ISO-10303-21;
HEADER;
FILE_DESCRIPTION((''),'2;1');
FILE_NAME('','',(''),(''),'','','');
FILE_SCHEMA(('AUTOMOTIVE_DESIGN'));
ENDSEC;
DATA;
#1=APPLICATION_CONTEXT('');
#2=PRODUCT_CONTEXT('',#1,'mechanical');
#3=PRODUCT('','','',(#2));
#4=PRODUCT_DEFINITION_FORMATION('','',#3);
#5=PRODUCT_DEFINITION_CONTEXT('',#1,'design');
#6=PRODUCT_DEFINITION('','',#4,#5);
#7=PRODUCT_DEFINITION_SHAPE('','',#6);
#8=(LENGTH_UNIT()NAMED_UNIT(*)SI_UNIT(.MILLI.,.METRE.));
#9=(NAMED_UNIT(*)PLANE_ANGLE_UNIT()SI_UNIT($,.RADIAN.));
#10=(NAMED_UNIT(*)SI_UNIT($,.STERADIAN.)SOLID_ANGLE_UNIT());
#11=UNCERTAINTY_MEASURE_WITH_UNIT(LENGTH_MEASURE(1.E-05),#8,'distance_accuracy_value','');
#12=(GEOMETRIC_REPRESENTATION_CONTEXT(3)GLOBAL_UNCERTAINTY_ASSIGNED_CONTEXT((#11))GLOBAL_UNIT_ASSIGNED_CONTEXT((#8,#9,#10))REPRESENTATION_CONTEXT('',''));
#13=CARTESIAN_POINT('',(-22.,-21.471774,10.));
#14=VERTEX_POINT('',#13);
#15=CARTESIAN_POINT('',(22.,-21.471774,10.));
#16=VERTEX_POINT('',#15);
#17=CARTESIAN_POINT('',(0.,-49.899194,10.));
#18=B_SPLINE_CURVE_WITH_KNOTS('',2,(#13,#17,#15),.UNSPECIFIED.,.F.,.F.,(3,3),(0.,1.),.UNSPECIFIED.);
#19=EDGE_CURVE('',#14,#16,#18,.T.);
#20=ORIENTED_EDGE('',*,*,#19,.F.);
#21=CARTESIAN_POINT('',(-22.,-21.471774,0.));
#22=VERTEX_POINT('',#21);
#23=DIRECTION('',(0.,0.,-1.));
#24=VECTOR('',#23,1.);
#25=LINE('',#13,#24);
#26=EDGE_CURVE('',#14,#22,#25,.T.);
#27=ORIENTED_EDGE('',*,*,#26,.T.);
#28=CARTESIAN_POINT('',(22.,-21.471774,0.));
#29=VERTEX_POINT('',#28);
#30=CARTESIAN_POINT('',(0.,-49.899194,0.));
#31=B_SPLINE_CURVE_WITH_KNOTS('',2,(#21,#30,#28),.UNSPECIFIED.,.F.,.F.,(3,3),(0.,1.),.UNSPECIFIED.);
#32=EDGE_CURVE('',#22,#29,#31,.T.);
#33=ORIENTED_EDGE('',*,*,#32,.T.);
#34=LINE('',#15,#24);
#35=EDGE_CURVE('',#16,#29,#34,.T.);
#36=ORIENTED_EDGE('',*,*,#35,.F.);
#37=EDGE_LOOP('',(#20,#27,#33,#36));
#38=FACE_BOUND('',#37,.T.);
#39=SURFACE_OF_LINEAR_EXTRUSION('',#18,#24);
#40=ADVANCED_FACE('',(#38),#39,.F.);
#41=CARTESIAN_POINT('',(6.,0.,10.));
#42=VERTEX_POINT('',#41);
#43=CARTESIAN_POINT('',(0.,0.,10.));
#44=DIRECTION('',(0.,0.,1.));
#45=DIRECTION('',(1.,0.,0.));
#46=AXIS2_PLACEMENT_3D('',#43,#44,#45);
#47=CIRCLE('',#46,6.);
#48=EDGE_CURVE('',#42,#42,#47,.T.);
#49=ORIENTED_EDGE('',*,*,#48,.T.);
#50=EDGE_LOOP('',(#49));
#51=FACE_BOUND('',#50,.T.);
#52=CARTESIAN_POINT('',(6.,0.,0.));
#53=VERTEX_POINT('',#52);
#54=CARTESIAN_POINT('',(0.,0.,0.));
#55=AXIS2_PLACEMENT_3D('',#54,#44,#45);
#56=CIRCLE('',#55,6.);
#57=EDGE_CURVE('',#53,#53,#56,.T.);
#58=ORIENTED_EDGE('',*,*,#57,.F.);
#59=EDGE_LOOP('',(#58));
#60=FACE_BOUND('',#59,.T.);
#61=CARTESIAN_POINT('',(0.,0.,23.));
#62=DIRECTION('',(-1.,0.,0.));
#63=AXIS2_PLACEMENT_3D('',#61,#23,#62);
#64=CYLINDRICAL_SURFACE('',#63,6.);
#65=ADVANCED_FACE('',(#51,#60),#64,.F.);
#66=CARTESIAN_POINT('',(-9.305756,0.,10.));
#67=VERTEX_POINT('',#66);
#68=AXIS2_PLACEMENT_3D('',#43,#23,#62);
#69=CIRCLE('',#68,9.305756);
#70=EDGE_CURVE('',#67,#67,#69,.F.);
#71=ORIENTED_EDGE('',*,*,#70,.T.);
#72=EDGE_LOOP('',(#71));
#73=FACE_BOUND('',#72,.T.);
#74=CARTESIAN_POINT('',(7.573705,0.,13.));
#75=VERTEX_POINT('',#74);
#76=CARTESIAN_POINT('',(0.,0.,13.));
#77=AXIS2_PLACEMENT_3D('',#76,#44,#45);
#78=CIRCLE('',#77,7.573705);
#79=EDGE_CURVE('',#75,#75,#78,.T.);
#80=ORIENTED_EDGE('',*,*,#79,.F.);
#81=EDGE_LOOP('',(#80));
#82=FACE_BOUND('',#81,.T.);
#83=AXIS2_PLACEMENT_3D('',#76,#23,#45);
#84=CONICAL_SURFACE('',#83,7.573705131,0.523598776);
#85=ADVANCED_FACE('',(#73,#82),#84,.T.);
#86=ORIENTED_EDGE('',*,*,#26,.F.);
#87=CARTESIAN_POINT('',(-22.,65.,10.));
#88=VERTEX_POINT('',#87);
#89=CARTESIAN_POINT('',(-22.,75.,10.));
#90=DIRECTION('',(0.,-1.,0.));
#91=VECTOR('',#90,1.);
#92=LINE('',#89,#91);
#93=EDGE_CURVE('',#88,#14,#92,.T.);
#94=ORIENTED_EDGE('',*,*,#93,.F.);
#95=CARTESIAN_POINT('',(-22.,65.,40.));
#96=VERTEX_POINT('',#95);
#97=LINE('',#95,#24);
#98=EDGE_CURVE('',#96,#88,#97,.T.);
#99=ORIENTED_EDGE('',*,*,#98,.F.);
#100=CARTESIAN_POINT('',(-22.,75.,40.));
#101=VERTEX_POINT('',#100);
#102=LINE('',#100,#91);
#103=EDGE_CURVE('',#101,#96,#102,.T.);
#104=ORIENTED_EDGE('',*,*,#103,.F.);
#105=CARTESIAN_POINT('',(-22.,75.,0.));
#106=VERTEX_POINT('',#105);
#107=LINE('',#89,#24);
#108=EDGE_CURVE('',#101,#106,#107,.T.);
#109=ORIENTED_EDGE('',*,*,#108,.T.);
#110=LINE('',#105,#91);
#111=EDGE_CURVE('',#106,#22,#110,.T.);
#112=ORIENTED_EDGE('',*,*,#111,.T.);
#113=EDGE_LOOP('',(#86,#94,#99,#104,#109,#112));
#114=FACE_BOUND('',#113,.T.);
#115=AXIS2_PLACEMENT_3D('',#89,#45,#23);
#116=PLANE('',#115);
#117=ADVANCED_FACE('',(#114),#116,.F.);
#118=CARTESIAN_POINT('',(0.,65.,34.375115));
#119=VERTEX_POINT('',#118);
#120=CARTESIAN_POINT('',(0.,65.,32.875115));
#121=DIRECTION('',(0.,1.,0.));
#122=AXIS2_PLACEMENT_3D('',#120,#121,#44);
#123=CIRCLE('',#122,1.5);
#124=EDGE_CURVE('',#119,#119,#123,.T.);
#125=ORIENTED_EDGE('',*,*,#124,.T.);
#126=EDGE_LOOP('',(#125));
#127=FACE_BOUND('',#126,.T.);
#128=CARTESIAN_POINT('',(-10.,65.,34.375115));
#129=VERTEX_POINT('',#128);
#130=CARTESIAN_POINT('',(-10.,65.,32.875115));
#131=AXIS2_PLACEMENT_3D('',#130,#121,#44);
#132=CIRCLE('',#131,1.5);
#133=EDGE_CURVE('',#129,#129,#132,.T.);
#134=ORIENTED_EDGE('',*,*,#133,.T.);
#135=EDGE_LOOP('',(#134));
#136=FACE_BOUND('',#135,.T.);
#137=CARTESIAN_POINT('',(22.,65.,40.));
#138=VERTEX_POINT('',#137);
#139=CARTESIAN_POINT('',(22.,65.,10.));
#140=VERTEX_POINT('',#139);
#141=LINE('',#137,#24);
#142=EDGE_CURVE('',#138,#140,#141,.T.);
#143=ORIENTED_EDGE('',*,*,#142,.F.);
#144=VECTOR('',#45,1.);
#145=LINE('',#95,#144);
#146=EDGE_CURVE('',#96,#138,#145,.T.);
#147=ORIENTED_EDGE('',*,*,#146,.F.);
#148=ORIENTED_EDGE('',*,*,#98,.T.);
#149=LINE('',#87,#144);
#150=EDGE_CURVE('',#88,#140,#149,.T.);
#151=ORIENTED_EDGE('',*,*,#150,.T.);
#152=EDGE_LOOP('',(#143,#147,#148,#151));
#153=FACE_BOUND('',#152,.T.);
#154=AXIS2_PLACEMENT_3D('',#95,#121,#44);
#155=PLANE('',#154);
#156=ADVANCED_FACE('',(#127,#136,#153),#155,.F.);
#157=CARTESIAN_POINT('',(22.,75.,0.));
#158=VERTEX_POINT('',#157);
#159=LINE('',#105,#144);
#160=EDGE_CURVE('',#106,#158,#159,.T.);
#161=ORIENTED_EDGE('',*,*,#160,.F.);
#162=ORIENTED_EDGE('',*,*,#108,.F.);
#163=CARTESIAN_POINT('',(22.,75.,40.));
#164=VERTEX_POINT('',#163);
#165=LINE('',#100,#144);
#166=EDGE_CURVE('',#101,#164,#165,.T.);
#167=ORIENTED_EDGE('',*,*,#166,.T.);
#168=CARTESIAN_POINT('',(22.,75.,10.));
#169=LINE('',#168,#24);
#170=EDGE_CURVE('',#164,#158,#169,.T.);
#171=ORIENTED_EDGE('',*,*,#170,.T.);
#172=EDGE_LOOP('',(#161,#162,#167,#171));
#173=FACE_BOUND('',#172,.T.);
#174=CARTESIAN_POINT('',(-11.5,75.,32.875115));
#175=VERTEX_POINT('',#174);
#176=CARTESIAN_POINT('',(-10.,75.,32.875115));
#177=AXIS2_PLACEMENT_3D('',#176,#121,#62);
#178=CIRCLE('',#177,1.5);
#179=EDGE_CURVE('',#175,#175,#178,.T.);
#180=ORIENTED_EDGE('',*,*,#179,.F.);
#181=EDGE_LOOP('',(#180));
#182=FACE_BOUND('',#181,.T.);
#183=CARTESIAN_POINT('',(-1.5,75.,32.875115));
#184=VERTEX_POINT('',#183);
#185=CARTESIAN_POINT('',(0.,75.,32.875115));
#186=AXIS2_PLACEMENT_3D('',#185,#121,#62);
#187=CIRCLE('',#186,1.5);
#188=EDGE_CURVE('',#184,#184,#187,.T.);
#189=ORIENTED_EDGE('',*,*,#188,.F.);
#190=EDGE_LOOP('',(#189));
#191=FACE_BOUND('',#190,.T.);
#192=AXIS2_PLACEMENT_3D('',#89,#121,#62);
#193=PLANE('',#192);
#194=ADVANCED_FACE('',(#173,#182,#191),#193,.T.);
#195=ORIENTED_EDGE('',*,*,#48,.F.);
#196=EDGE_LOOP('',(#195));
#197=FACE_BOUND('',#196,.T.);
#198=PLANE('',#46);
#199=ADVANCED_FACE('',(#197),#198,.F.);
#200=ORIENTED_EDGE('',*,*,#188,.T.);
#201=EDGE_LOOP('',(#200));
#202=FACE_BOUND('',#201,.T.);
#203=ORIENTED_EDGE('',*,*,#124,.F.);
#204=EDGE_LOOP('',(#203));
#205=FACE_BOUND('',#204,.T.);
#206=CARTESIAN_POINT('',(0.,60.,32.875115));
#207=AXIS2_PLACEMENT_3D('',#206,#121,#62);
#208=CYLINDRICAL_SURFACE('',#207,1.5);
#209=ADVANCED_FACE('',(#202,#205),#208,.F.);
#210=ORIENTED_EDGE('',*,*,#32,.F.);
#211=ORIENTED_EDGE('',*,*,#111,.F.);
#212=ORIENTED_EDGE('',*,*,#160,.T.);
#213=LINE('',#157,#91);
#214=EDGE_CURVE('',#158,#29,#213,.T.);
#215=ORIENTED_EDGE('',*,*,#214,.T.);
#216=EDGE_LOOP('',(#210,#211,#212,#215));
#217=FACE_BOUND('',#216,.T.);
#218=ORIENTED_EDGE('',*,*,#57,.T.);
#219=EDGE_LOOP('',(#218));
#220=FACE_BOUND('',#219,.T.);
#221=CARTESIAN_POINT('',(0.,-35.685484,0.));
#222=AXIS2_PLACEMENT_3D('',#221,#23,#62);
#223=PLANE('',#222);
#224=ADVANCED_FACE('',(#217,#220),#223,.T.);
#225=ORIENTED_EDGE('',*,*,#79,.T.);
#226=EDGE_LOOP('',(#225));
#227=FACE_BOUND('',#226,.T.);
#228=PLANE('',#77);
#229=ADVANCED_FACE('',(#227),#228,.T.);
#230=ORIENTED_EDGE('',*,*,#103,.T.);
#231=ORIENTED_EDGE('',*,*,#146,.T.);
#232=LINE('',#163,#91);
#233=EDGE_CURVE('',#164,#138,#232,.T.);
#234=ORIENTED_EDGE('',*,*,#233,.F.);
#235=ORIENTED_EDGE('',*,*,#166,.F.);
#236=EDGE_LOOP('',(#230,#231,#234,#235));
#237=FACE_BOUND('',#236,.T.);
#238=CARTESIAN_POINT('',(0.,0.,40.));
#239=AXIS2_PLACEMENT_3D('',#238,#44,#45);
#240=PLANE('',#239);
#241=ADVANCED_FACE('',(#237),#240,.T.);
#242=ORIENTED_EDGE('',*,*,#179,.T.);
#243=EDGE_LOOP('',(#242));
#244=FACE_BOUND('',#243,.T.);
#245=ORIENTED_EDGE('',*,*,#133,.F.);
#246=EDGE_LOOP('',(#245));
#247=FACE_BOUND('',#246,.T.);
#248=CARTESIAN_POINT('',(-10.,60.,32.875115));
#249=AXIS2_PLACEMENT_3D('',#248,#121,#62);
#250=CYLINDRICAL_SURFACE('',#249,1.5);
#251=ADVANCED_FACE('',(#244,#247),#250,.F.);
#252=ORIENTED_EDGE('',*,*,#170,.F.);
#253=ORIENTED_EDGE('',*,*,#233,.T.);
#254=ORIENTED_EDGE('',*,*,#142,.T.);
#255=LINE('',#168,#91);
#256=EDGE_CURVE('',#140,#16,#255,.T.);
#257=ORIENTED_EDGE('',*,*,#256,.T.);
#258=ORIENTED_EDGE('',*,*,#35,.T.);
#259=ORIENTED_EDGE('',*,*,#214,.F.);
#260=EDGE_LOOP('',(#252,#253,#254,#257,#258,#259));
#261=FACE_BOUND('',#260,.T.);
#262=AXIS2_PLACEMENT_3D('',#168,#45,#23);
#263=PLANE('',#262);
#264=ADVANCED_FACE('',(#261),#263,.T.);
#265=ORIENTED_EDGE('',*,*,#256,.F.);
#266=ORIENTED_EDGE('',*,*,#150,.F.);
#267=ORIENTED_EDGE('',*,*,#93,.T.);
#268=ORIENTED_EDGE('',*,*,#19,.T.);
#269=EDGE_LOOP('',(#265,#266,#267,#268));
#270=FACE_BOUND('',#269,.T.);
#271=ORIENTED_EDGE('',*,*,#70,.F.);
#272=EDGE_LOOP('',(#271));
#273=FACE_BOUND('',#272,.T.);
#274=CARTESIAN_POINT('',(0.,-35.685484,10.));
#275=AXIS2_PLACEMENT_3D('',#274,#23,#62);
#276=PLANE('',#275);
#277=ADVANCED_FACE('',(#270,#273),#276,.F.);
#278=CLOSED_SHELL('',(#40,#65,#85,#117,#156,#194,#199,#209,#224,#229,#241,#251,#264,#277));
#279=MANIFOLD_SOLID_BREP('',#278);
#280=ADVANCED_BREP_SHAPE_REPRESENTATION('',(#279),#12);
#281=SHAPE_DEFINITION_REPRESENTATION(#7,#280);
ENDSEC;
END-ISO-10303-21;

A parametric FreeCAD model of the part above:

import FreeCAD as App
import Part
import Sketcher

V = App.Vector


def faces_at(feature, points):
    """Names of the faces that lie closest to the given points."""
    faces = feature.Shape.Faces
    near = lambda p: min(range(len(faces)), key=lambda i: faces[i].distToShape(Part.Vertex(*p))[0])
    return sorted({f"Face{near(p) + 1}" for p in points})


def add_polygon(sketch, points):
    """Adds a closed chain of lines whose ends are joined by coincident constraints."""
    first, n = sketch.GeometryCount, len(points)
    for a, b in zip(points, points[1:] + points[:1]):
        sketch.addGeometry(Part.LineSegment(App.Vector(*a, 0), App.Vector(*b, 0)), False)
    for i in range(n):
        sketch.addConstraint(Sketcher.Constraint("Coincident", first + i, 2, first + (i + 1) % n, 1))

doc = App.newDocument("Part")
body = doc.addObject("PartDesign::Body", "Body")

# Sketch on XY plane
sketch1 = doc.addObject("Sketcher::SketchObject", "Sketch")
body.addObject(sketch1)
sketch1.AttachmentSupport = (doc.XY_Plane, [""])
sketch1.MapMode = "FlatFace"
sketch1.addGeometry(Part.LineSegment(V(22, 75, 0), V(-22, 75, 0)), False)
sketch1.addGeometry(Part.LineSegment(V(-22, 75, 0), V(-22, -21.471774, 0)), False)
sketch1.addGeometry(Part.BSplineCurve([V(-22, -21.471774, 0), V(0, -49.899194, 0), V(22, -21.471774, 0)], [3, 3], [0, 1], False, 2, [1, 1, 1], False), False)
sketch1.addGeometry(Part.LineSegment(V(22, -21.471774, 0), V(22, 75, 0)), False)
sketch1.addConstraint(Sketcher.Constraint("Block", 2))
sketch1.addConstraint(Sketcher.Constraint("Coincident", 0, 2, 1, 1))
sketch1.addConstraint(Sketcher.Constraint("Coincident", 1, 2, 2, 1))
sketch1.addConstraint(Sketcher.Constraint("Coincident", 2, 2, 3, 1))
sketch1.addConstraint(Sketcher.Constraint("Coincident", 3, 2, 0, 1))
sketch1.addConstraint(Sketcher.Constraint("Horizontal", 0))
sketch1.addConstraint(Sketcher.Constraint("Vertical", 1))
sketch1.addConstraint(Sketcher.Constraint("Vertical", 3))
sketch1.addConstraint(Sketcher.Constraint("DistanceY", -1, 1, 0, 2, 75.0))
pad1 = doc.addObject("PartDesign::Pad", "Pad")
body.addObject(pad1)
pad1.Profile = sketch1
pad1.Length = 10

# Sketch on XY plane
sketch2 = doc.addObject("Sketcher::SketchObject", "Sketch001")
body.addObject(sketch2)
sketch2.AttachmentSupport = (doc.XY_Plane, [""])
sketch2.MapMode = "FlatFace"
sketch2.addGeometry(Part.Circle(V(0, 0, 0), V(0, 0, 1), 6), False)
sketch2.addConstraint(Sketcher.Constraint("Coincident", 0, 3, -1, 1))
sketch2.addConstraint(Sketcher.Constraint("Diameter", 0, 12.0))
pocket1 = doc.addObject("PartDesign::Pocket", "Pocket")
body.addObject(pocket1)
pocket1.Profile = sketch2
pocket1.Length = 23
pocket1.Reversed = True

# Sketch on XY plane
sketch3 = doc.addObject("Sketcher::SketchObject", "Sketch002")
body.addObject(sketch3)
sketch3.AttachmentSupport = (doc.XY_Plane, [""])
sketch3.MapMode = "FlatFace"
sketch3.AttachmentOffset = App.Placement(V(0, 0, 10), App.Rotation())
add_polygon(sketch3, [(-22, 75), (-22, 65), (22, 65), (22, 75)])  # lines 0-3
sketch3.addConstraint(Sketcher.Constraint("Vertical", 0))
sketch3.addConstraint(Sketcher.Constraint("Horizontal", 1))
sketch3.addConstraint(Sketcher.Constraint("Vertical", 2))
sketch3.addConstraint(Sketcher.Constraint("Horizontal", 3))
sketch3.addConstraint(Sketcher.Constraint("DistanceX", 1, 1, 1, 2, 44.0))
sketch3.addConstraint(Sketcher.Constraint("DistanceY", 0, 2, 0, 1, 10.0))
sketch3.addConstraint(Sketcher.Constraint("DistanceX", 0, 2, -1, 1, 22.0))
sketch3.addConstraint(Sketcher.Constraint("DistanceY", -1, 1, 0, 2, 65.0))
pad2 = doc.addObject("PartDesign::Pad", "Pad001")
body.addObject(pad2)
pad2.Profile = sketch3
pad2.Length = 30

# Sketch on XZ plane
sketch4 = doc.addObject("Sketcher::SketchObject", "Sketch003")
body.addObject(sketch4)
sketch4.AttachmentSupport = (doc.XZ_Plane, [""])
sketch4.MapMode = "FlatFace"
sketch4.AttachmentOffset = App.Placement(V(0, 0, -75), App.Rotation())
sketch4.addGeometry(Part.Circle(V(0, 32.9, 0), V(0, 0, 1), 1.5), False)
sketch4.addConstraint(Sketcher.Constraint("PointOnObject", 0, 3, -2))
sketch4.addConstraint(Sketcher.Constraint("Diameter", 0, 3.0))
sketch4.addConstraint(Sketcher.Constraint("DistanceY", -1, 1, 0, 3, 32.875115))
pocket2 = doc.addObject("PartDesign::Pocket", "Pocket001")
body.addObject(pocket2)
pocket2.Profile = sketch4
pocket2.Length = 15
pocket2.Reversed = True
doc.recompute()

linearpattern = doc.addObject("PartDesign::LinearPattern", "LinearPattern")
body.addObject(linearpattern)
linearpattern.Originals = [pocket2]
linearpattern.Direction = (doc.X_Axis, [""])
linearpattern.Mode = "offset"
linearpattern.Offset = 10
linearpattern.Occurrences = 2
linearpattern.Reversed = True
body.Tip = linearpattern

# Sketch on XY plane
sketch5 = doc.addObject("Sketcher::SketchObject", "Sketch004")
body.addObject(sketch5)
sketch5.AttachmentSupport = (doc.XY_Plane, [""])
sketch5.MapMode = "FlatFace"
sketch5.AttachmentOffset = App.Placement(V(0, 0, 10), App.Rotation())
sketch5.addGeometry(Part.Circle(V(0, 0, 0), V(0, 0, 1), 8), False)
sketch5.addConstraint(Sketcher.Constraint("Coincident", 0, 3, -1, 1))
sketch5.addConstraint(Sketcher.Constraint("Diameter", 0, 15.14741))
pad3 = doc.addObject("PartDesign::Pad", "Pad002")
body.addObject(pad3)
pad3.Profile = sketch5
pad3.Length = 3
doc.recompute()

datumplane = doc.addObject("PartDesign::Plane", "DatumPlane")
body.addObject(datumplane)
datumplane.AttachmentSupport = (doc.XY_Plane, [""])
datumplane.MapMode = "FlatFace"
datumplane.AttachmentOffset = App.Placement(V(0, 0, 13), App.Rotation())
draft = doc.addObject("PartDesign::Draft", "Draft")
body.addObject(draft)
draft.Base = (pad3, faces_at(pad3, [(-7.574, 0, 11.5)]))
draft.NeutralPlane = (datumplane, [""])
draft.Angle = 30
draft.Reversed = False

doc.recompute()
